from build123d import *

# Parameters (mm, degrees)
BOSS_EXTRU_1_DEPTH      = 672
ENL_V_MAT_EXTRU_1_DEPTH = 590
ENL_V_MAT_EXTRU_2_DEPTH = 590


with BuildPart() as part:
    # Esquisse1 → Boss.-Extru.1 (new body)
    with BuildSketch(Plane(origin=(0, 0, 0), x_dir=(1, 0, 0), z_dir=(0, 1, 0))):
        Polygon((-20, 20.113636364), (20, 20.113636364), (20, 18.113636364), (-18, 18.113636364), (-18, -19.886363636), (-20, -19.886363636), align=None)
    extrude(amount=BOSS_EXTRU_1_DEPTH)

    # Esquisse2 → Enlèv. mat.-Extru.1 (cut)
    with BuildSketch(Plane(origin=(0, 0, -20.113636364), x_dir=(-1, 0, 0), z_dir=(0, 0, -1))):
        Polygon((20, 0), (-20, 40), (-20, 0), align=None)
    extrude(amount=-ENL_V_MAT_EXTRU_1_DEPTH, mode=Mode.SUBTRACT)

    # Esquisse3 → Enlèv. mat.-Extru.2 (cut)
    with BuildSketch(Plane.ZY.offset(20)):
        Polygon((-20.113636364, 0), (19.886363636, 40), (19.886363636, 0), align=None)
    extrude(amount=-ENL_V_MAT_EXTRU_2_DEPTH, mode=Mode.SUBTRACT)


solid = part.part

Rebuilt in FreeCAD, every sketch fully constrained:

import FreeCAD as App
import Part
import Sketcher

V = App.Vector

doc = App.newDocument("Part")
body = doc.addObject("PartDesign::Body", "Body")

# Sketch on XZ plane
sketch1 = body.newObject("Sketcher::SketchObject", "Sketch")
sketch1.AttachmentSupport = (doc.getObject("XZ_Plane"), [""])
sketch1.MapMode = "FlatFace"
sketch1.addGeometry([
    Part.LineSegment(V(20, -20.1, 0), V(-20, -20.1, 0)),  # 0
    Part.LineSegment(V(-20, -20.1, 0), V(-20, 19.9, 0)),  # 1
    Part.LineSegment(V(-20, 19.9, 0), V(-18, 19.9, 0)),  # 2
    Part.LineSegment(V(-18, 19.9, 0), V(-18, -18.1, 0)),  # 3
    Part.LineSegment(V(-18, -18.1, 0), V(20, -18.1, 0)),  # 4
    Part.LineSegment(V(20, -18.1, 0), V(20, -20.1, 0)),  # 5
], False)
sketch1.addConstraint([
    Sketcher.Constraint("Coincident", 0, 2, 1, 1),
    Sketcher.Constraint("Coincident", 1, 2, 2, 1),
    Sketcher.Constraint("Coincident", 2, 2, 3, 1),
    Sketcher.Constraint("Coincident", 3, 2, 4, 1),
    Sketcher.Constraint("Coincident", 4, 2, 5, 1),
    Sketcher.Constraint("Coincident", 5, 2, 0, 1),
    Sketcher.Constraint("Horizontal", 0),
    Sketcher.Constraint("Vertical", 1),
    Sketcher.Constraint("Horizontal", 2),
    Sketcher.Constraint("Vertical", 3),
    Sketcher.Constraint("Horizontal", 4),
    Sketcher.Constraint("Vertical", 5),
    Sketcher.Constraint("Equal", 0, 1),
    Sketcher.Constraint("Equal", 4, 3),
    Sketcher.Constraint("DistanceX", 0, 2, 0, 1, 40.0),
    Sketcher.Constraint("DistanceX", 2, 1, 2, 2, 2.0),
    Sketcher.Constraint("DistanceX", 0, 2, -1, 1, 20.0),
    Sketcher.Constraint("DistanceY", 0, 2, -1, 1, 20.113636),
])
pad1 = body.newObject("PartDesign::Pad", "Pad")
pad1.Profile = sketch1
pad1.Length = 672
pad1.Reversed = True

# Sketch on XY plane
sketch2 = body.newObject("Sketcher::SketchObject", "Sketch001")
sketch2.AttachmentSupport = (doc.getObject("XY_Plane"), [""])
sketch2.MapMode = "FlatFace"
sketch2.AttachmentOffset = App.Placement(V(0, 0, -20.113636), App.Rotation())
sketch2.addGeometry([
    Part.LineSegment(V(-20, 0, 0), V(20, 40, 0)),
    Part.LineSegment(V(20, 40, 0), V(20, 0, 0)),
    Part.LineSegment(V(20, 0, 0), V(-20, 0, 0)),
], False)
sketch2.addConstraint([
    Sketcher.Constraint("Coincident", 0, 2, 1, 1),
    Sketcher.Constraint("Coincident", 1, 2, 2, 1),
    Sketcher.Constraint("Coincident", 2, 2, 0, 1),
    Sketcher.Constraint("Vertical", 1),
    Sketcher.Constraint("Horizontal", 2),
    Sketcher.Constraint("Symmetric", 1, 2, 2, 2, -1, 1),
    Sketcher.Constraint("Equal", 2, 1),
    Sketcher.Constraint("DistanceX", 2, 2, 2, 1, 40.0),
])
pocket1 = body.newObject("PartDesign::Pocket", "Pocket")
pocket1.Profile = sketch2
pocket1.Length = 590
pocket1.Reversed = True

# Sketch on YZ plane
sketch3 = body.newObject("Sketcher::SketchObject", "Sketch002")
sketch3.AttachmentSupport = (doc.getObject("YZ_Plane"), [""])
sketch3.MapMode = "FlatFace"
sketch3.AttachmentOffset = App.Placement(V(0, 0, -20), App.Rotation())
sketch3.addGeometry([
    Part.LineSegment(V(40, 20, 0), V(0, -20, 0)),
    Part.LineSegment(V(0, -20, 0), V(0, 20, 0)),
    Part.LineSegment(V(0, 20, 0), V(40, 20, 0)),
], False)
sketch3.addConstraint([
    Sketcher.Constraint("Coincident", 0, 2, 1, 1),
    Sketcher.Constraint("Coincident", 1, 2, 2, 1),
    Sketcher.Constraint("Coincident", 2, 2, 0, 1),
    Sketcher.Constraint("Vertical", 1),
    Sketcher.Constraint("Horizontal", 2),
    Sketcher.Constraint("PointOnObject", 0, 2, -2),
    Sketcher.Constraint("Equal", 2, 1),
    Sketcher.Constraint("DistanceX", 2, 1, 2, 2, 40.0),
    Sketcher.Constraint("DistanceY", 0, 2, -1, 1, 20.113636),
])
pocket2 = body.newObject("PartDesign::Pocket", "Pocket001")
pocket2.Profile = sketch3
pocket2.Length = 590
pocket2.Reversed = True

doc.recompute()
